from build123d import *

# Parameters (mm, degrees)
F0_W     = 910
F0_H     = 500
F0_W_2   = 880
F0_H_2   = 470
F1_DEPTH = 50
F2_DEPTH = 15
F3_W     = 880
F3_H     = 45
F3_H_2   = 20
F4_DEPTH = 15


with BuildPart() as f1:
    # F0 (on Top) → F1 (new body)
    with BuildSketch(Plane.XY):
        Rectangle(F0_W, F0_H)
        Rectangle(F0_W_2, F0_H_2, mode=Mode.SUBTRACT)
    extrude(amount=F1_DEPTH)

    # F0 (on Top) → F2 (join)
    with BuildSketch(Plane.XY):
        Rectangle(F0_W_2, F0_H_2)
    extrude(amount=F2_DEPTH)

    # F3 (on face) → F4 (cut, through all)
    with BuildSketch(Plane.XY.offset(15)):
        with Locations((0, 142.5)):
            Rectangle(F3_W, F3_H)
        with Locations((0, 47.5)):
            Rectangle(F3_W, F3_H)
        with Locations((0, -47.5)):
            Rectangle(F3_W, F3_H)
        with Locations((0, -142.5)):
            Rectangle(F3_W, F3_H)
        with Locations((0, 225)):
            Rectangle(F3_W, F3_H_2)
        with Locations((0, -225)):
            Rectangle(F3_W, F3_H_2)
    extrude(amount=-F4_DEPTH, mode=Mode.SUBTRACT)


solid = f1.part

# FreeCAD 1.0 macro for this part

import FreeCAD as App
import Part
import Sketcher

V = App.Vector

doc = App.newDocument("Part")
body = doc.addObject("PartDesign::Body", "Body")

sketch1 = body.newObject("Sketcher::SketchObject", "Sketch")
sketch1.AttachmentSupport = (doc.getObject("XY_Plane"), [""])
sketch1.MapMode = "FlatFace"
sketch1.addGeometry(Part.LineSegment(V(-455, 250, 0), V(-455, -250, 0)), False)
sketch1.addGeometry(Part.LineSegment(V(-455, -250, 0), V(455, -250, 0)), False)
sketch1.addGeometry(Part.LineSegment(V(455, -250, 0), V(455, 250, 0)), False)
sketch1.addGeometry(Part.LineSegment(V(455, 250, 0), V(-455, 250, 0)), False)
sketch1.addGeometry(Part.LineSegment(V(440, -235, 0), V(-440, -235, 0)), False)
sketch1.addGeometry(Part.LineSegment(V(-440, -235, 0), V(-440, 235, 0)), False)
sketch1.addGeometry(Part.LineSegment(V(-440, 235, 0), V(440, 235, 0)), False)
sketch1.addGeometry(Part.LineSegment(V(440, 235, 0), V(440, -235, 0)), False)
sketch1.addConstraint(Sketcher.Constraint("Coincident", 0, 2, 1, 1))
sketch1.addConstraint(Sketcher.Constraint("Coincident", 1, 2, 2, 1))
sketch1.addConstraint(Sketcher.Constraint("Coincident", 2, 2, 3, 1))
sketch1.addConstraint(Sketcher.Constraint("Coincident", 3, 2, 0, 1))
sketch1.addConstraint(Sketcher.Constraint("Coincident", 4, 2, 5, 1))
sketch1.addConstraint(Sketcher.Constraint("Coincident", 5, 2, 6, 1))
sketch1.addConstraint(Sketcher.Constraint("Coincident", 6, 2, 7, 1))
sketch1.addConstraint(Sketcher.Constraint("Coincident", 7, 2, 4, 1))
sketch1.addConstraint(Sketcher.Constraint("Vertical", 0))
sketch1.addConstraint(Sketcher.Constraint("Horizontal", 1))
sketch1.addConstraint(Sketcher.Constraint("Vertical", 2))
sketch1.addConstraint(Sketcher.Constraint("Horizontal", 3))
sketch1.addConstraint(Sketcher.Constraint("Horizontal", 4))
sketch1.addConstraint(Sketcher.Constraint("Vertical", 5))
sketch1.addConstraint(Sketcher.Constraint("Horizontal", 6))
sketch1.addConstraint(Sketcher.Constraint("Vertical", 7))
sketch1.addConstraint(Sketcher.Constraint("Symmetric", 0, 2, 2, 2, -1, 1))
sketch1.addConstraint(Sketcher.Constraint("Symmetric", 4, 2, 6, 2, -1, 1))
sketch1.addConstraint(Sketcher.Constraint("DistanceX", 1, 1, 1, 2, 910.0))
sketch1.addConstraint(Sketcher.Constraint("DistanceX", 4, 2, 4, 1, 880.0))
sketch1.addConstraint(Sketcher.Constraint("DistanceY", 0, 2, 0, 1, 500.0))
sketch1.addConstraint(Sketcher.Constraint("DistanceY", 5, 1, 5, 2, 470.0))
pad1 = body.newObject("PartDesign::Pad", "Pad")
pad1.Profile = sketch1
pad1.Length = 50

sketch2 = body.newObject("Sketcher::SketchObject", "Sketch001")
sketch2.AttachmentSupport = (doc.getObject("XY_Plane"), [""])
sketch2.MapMode = "FlatFace"
sketch2.addGeometry(Part.LineSegment(V(-440, 235, 0), V(-440, -235, 0)), False)
sketch2.addGeometry(Part.LineSegment(V(-440, -235, 0), V(440, -235, 0)), False)
sketch2.addGeometry(Part.LineSegment(V(440, -235, 0), V(440, 235, 0)), False)
sketch2.addGeometry(Part.LineSegment(V(440, 235, 0), V(-440, 235, 0)), False)
sketch2.addConstraint(Sketcher.Constraint("Coincident", 0, 2, 1, 1))
sketch2.addConstraint(Sketcher.Constraint("Coincident", 1, 2, 2, 1))
sketch2.addConstraint(Sketcher.Constraint("Coincident", 2, 2, 3, 1))
sketch2.addConstraint(Sketcher.Constraint("Coincident", 3, 2, 0, 1))
sketch2.addConstraint(Sketcher.Constraint("Vertical", 0))
sketch2.addConstraint(Sketcher.Constraint("Horizontal", 1))
sketch2.addConstraint(Sketcher.Constraint("Vertical", 2))
sketch2.addConstraint(Sketcher.Constraint("Horizontal", 3))
sketch2.addConstraint(Sketcher.Constraint("Symmetric", 0, 2, 2, 2, -1, 1))
sketch2.addConstraint(Sketcher.Constraint("DistanceX", 1, 1, 1, 2, 880.0))
sketch2.addConstraint(Sketcher.Constraint("DistanceY", 0, 2, 0, 1, 470.0))
pad2 = body.newObject("PartDesign::Pad", "Pad001")
pad2.Profile = sketch2
pad2.Length = 15

sketch3 = body.newObject("Sketcher::SketchObject", "Sketch002")
sketch3.AttachmentSupport = (doc.getObject("XY_Plane"), [""])
sketch3.MapMode = "FlatFace"
sketch3.AttachmentOffset = App.Placement(V(0, 0, 15), App.Rotation())
sketch3.addGeometry(Part.LineSegment(V(-440, 165, 0), V(-440, 120, 0)), False)
sketch3.addGeometry(Part.LineSegment(V(-440, 120, 0), V(440, 120, 0)), False)
sketch3.addGeometry(Part.LineSegment(V(440, 120, 0), V(440, 165, 0)), False)
sketch3.addGeometry(Part.LineSegment(V(440, 165, 0), V(-440, 165, 0)), False)
sketch3.addGeometry(Part.LineSegment(V(-440, 70, 0), V(-440, 25, 0)), False)
sketch3.addGeometry(Part.LineSegment(V(-440, 25, 0), V(440, 25, 0)), False)
sketch3.addGeometry(Part.LineSegment(V(440, 25, 0), V(440, 70, 0)), False)
sketch3.addGeometry(Part.LineSegment(V(440, 70, 0), V(-440, 70, 0)), False)
sketch3.addGeometry(Part.LineSegment(V(-440, -25, 0), V(-440, -70, 0)), False)
sketch3.addGeometry(Part.LineSegment(V(-440, -70, 0), V(440, -70, 0)), False)
sketch3.addGeometry(Part.LineSegment(V(440, -70, 0), V(440, -25, 0)), False)
sketch3.addGeometry(Part.LineSegment(V(440, -25, 0), V(-440, -25, 0)), False)
sketch3.addGeometry(Part.LineSegment(V(-440, -120, 0), V(-440, -165, 0)), False)
sketch3.addGeometry(Part.LineSegment(V(-440, -165, 0), V(440, -165, 0)), False)
sketch3.addGeometry(Part.LineSegment(V(440, -165, 0), V(440, -120, 0)), False)
sketch3.addGeometry(Part.LineSegment(V(440, -120, 0), V(-440, -120, 0)), False)
sketch3.addGeometry(Part.LineSegment(V(-440, 235, 0), V(-440, 215, 0)), False)
sketch3.addGeometry(Part.LineSegment(V(-440, 215, 0), V(440, 215, 0)), False)
sketch3.addGeometry(Part.LineSegment(V(440, 215, 0), V(440, 235, 0)), False)
sketch3.addGeometry(Part.LineSegment(V(440, 235, 0), V(-440, 235, 0)), False)
sketch3.addGeometry(Part.LineSegment(V(-440, -215, 0), V(-440, -235, 0)), False)
sketch3.addGeometry(Part.LineSegment(V(-440, -235, 0), V(440, -235, 0)), False)
sketch3.addGeometry(Part.LineSegment(V(440, -235, 0), V(440, -215, 0)), False)
sketch3.addGeometry(Part.LineSegment(V(440, -215, 0), V(-440, -215, 0)), False)
sketch3.addConstraint(Sketcher.Constraint("Coincident", 0, 2, 1, 1))
sketch3.addConstraint(Sketcher.Constraint("Coincident", 1, 2, 2, 1))
sketch3.addConstraint(Sketcher.Constraint("Coincident", 2, 2, 3, 1))
sketch3.addConstraint(Sketcher.Constraint("Coincident", 3, 2, 0, 1))
sketch3.addConstraint(Sketcher.Constraint("Coincident", 4, 2, 5, 1))
sketch3.addConstraint(Sketcher.Constraint("Coincident", 5, 2, 6, 1))
sketch3.addConstraint(Sketcher.Constraint("Coincident", 6, 2, 7, 1))
sketch3.addConstraint(Sketcher.Constraint("Coincident", 7, 2, 4, 1))
sketch3.addConstraint(Sketcher.Constraint("Coincident", 8, 2, 9, 1))
sketch3.addConstraint(Sketcher.Constraint("Coincident", 9, 2, 10, 1))
sketch3.addConstraint(Sketcher.Constraint("Coincident", 10, 2, 11, 1))
sketch3.addConstraint(Sketcher.Constraint("Coincident", 11, 2, 8, 1))
sketch3.addConstraint(Sketcher.Constraint("Coincident", 12, 2, 13, 1))
sketch3.addConstraint(Sketcher.Constraint("Coincident", 13, 2, 14, 1))
sketch3.addConstraint(Sketcher.Constraint("Coincident", 14, 2, 15, 1))
sketch3.addConstraint(Sketcher.Constraint("Coincident", 15, 2, 12, 1))
sketch3.addConstraint(Sketcher.Constraint("Coincident", 16, 2, 17, 1))
sketch3.addConstraint(Sketcher.Constraint("Coincident", 17, 2, 18, 1))
sketch3.addConstraint(Sketcher.Constraint("Coincident", 18, 2, 19, 1))
sketch3.addConstraint(Sketcher.Constraint("Coincident", 19, 2, 16, 1))
sketch3.addConstraint(Sketcher.Constraint("Coincident", 20, 2, 21, 1))
sketch3.addConstraint(Sketcher.Constraint("Coincident", 21, 2, 22, 1))
sketch3.addConstraint(Sketcher.Constraint("Coincident", 22, 2, 23, 1))
sketch3.addConstraint(Sketcher.Constraint("Coincident", 23, 2, 20, 1))
sketch3.addConstraint(Sketcher.Constraint("Vertical", 0))
sketch3.addConstraint(Sketcher.Constraint("Horizontal", 1))
sketch3.addConstraint(Sketcher.Constraint("Vertical", 2))
sketch3.addConstraint(Sketcher.Constraint("Horizontal", 3))
sketch3.addConstraint(Sketcher.Constraint("Vertical", 4))
sketch3.addConstraint(Sketcher.Constraint("Horizontal", 5))
sketch3.addConstraint(Sketcher.Constraint("Vertical", 6))
sketch3.addConstraint(Sketcher.Constraint("Horizontal", 7))
sketch3.addConstraint(Sketcher.Constraint("Vertical", 8))
sketch3.addConstraint(Sketcher.Constraint("Horizontal", 9))
sketch3.addConstraint(Sketcher.Constraint("Vertical", 10))
sketch3.addConstraint(Sketcher.Constraint("Horizontal", 11))
sketch3.addConstraint(Sketcher.Constraint("Vertical", 12))
sketch3.addConstraint(Sketcher.Constraint("Horizontal", 13))
sketch3.addConstraint(Sketcher.Constraint("Vertical", 14))
sketch3.addConstraint(Sketcher.Constraint("Horizontal", 15))
sketch3.addConstraint(Sketcher.Constraint("Vertical", 16))
sketch3.addConstraint(Sketcher.Constraint("Horizontal", 17))
sketch3.addConstraint(Sketcher.Constraint("Vertical", 18))
sketch3.addConstraint(Sketcher.Constraint("Horizontal", 19))
sketch3.addConstraint(Sketcher.Constraint("Vertical", 20))
sketch3.addConstraint(Sketcher.Constraint("Horizontal", 21))
sketch3.addConstraint(Sketcher.Constraint("Vertical", 22))
sketch3.addConstraint(Sketcher.Constraint("Horizontal", 23))
sketch3.addConstraint(Sketcher.Constraint("Symmetric", 6, 2, 8, 2, -1, 1))
sketch3.addConstraint(Sketcher.Constraint("Symmetric", 4, 2, 10, 2, -1, 1))
sketch3.addConstraint(Sketcher.Constraint("Symmetric", 2, 2, 12, 2, -1, 1))
sketch3.addConstraint(Sketcher.Constraint("Symmetric", 0, 2, 14, 2, -1, 1))
sketch3.addConstraint(Sketcher.Constraint("Symmetric", 18, 2, 20, 2, -1, 1))
sketch3.addConstraint(Sketcher.Constraint("Symmetric", 16, 2, 22, 2, -1, 1))
sketch3.addConstraint(Sketcher.Constraint("Vertical", 3, 2, 4, 2))
sketch3.addConstraint(Sketcher.Constraint("Vertical", 2, 2, 5, 2))
sketch3.addConstraint(Sketcher.Constraint("Vertical", 7, 2, 8, 2))
sketch3.addConstraint(Sketcher.Constraint("Vertical", 15, 2, 16, 2))
sketch3.addConstraint(Sketcher.Constraint("Vertical", 14, 2, 17, 2))
sketch3.addConstraint(Sketcher.Constraint("Equal", 2, 4))
sketch3.addConstraint(Sketcher.Constraint("DistanceX", 1, 1, 1, 2, 880.0))
sketch3.addConstraint(Sketcher.Constraint("DistanceY", 0, 2, 0, 1, 45.0))
sketch3.addConstraint(Sketcher.Constraint("DistanceY", 16, 2, 16, 1, 20.0))
sketch3.addConstraint(Sketcher.Constraint("DistanceY", -1, 1, 0, 2, 120.0))
sketch3.addConstraint(Sketcher.Constraint("DistanceY", -1, 1, 4, 2, 25.0))
sketch3.addConstraint(Sketcher.Constraint("DistanceY", -1, 1, 16, 2, 215.0))
pocket1 = body.newObject("PartDesign::Pocket", "Pocket")
pocket1.Profile = sketch3
pocket1.Type = "ThroughAll"

doc.recompute()
